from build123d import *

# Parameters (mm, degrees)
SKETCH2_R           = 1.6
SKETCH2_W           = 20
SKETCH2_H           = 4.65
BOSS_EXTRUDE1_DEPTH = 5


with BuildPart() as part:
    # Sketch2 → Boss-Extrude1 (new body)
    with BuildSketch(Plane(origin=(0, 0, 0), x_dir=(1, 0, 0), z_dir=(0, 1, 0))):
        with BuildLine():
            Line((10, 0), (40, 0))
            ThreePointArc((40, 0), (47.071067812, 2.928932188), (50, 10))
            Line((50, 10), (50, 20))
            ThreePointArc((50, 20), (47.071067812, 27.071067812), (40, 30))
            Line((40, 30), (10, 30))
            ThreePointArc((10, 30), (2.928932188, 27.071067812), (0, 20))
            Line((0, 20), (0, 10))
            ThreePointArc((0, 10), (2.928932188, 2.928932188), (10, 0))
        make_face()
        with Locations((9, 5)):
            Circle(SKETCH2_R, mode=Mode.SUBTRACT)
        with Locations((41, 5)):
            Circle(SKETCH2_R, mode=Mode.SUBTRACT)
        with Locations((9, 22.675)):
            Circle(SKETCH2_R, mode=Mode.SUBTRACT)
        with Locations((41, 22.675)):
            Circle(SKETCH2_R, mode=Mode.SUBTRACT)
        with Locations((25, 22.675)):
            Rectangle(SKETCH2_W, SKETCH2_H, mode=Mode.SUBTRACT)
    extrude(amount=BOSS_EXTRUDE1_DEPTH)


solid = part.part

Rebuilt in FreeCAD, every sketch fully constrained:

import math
import FreeCAD as App
import Part
import Sketcher
Q = App.Units.Quantity


def add_polygon(sketch, points):
    """Adds a closed chain of lines whose ends are joined by coincident constraints."""
    first, n = sketch.GeometryCount, len(points)
    for a, b in zip(points, points[1:] + points[:1]):
        sketch.addGeometry(Part.LineSegment(App.Vector(*a, 0), App.Vector(*b, 0)), False)
    for i in range(n):
        sketch.addConstraint(Sketcher.Constraint("Coincident", first + i, 2, first + (i + 1) % n, 1))

doc = App.newDocument("Part")
params = doc.addObject("Spreadsheet::Sheet", "Params")
for row, (alias, value) in enumerate([
    ("sketch1_radius", "10 mm"),
    ("sketch1_diameter", "3.2 mm"),
    ("sketch1_width", "30 mm"),
    ("sketch1_width2", "20 mm"),
    ("sketch1_height", "10 mm"),
    ("pad1_length", "5 mm"),
], start=1):
    params.set(f"A{row}", alias)
    params.set(f"B{row}", "=" + value)
    params.setAlias(f"B{row}", alias)

body = doc.addObject("PartDesign::Body", "Body")

# Sketch on XZ plane
sketch1 = body.newObject("Sketcher::SketchObject", "Sketch")
sketch1.AttachmentSupport = (doc.getObject("XZ_Plane"), [""])
sketch1.MapMode = "FlatFace"
sketch1.addGeometry(Part.LineSegment(App.Vector(10, 0, 0), App.Vector(40, 0, 0)), False)  # 0
sketch1.addGeometry(Part.ArcOfCircle(Part.Circle(App.Vector(40, -10, 0), App.Vector(0, 0, 1), 10), math.radians(0), math.radians(90)), False)  # 1
sketch1.addGeometry(Part.LineSegment(App.Vector(50, -10, 0), App.Vector(50, -20, 0)), False)  # 2
sketch1.addGeometry(Part.ArcOfCircle(Part.Circle(App.Vector(40, -20, 0), App.Vector(0, 0, 1), 10), math.radians(-90), math.radians(0)), False)  # 3
sketch1.addGeometry(Part.LineSegment(App.Vector(40, -30, 0), App.Vector(10, -30, 0)), False)  # 4
sketch1.addGeometry(Part.ArcOfCircle(Part.Circle(App.Vector(10, -20, 0), App.Vector(0, 0, 1), 10), math.radians(180), math.radians(270)), False)  # 5
sketch1.addGeometry(Part.LineSegment(App.Vector(0, -20, 0), App.Vector(0, -10, 0)), False)  # 6
sketch1.addGeometry(Part.ArcOfCircle(Part.Circle(App.Vector(10, -10, 0), App.Vector(0, 0, 1), 10), math.radians(90), math.radians(180)), False)  # 7
sketch1.addGeometry(Part.Circle(App.Vector(9, -5, 0), App.Vector(0, 0, 1), 1.6), False)  # 8
sketch1.addGeometry(Part.Circle(App.Vector(41, -5, 0), App.Vector(0, 0, 1), 1.6), False)  # 9
sketch1.addGeometry(Part.Circle(App.Vector(9, -22.675, 0), App.Vector(0, 0, 1), 1.6), False)  # 10
add_polygon(sketch1, [(35, -20.35), (15, -20.35), (15, -25), (35, -25)])  # lines 11-14
sketch1.addGeometry(Part.Circle(App.Vector(41, -22.675, 0), App.Vector(0, 0, 1), 1.6), False)  # 15
sketch1.addConstraint([
    Sketcher.Constraint("Tangent", 0, 2, 1, 2),
    Sketcher.Constraint("Tangent", 1, 1, 2, 1),
    Sketcher.Constraint("Tangent", 2, 2, 3, 2),
    Sketcher.Constraint("Tangent", 3, 1, 4, 1),
    Sketcher.Constraint("Tangent", 4, 2, 5, 2),
    Sketcher.Constraint("Tangent", 5, 1, 6, 1),
    Sketcher.Constraint("Tangent", 6, 2, 7, 2),
    Sketcher.Constraint("Tangent", 7, 1, 0, 1),
    Sketcher.Constraint("Horizontal", 0),
    Sketcher.Constraint("Vertical", 2),
    Sketcher.Constraint("Horizontal", 4),
    Sketcher.Constraint("Vertical", 6),
    Sketcher.Constraint("Horizontal", 11),
    Sketcher.Constraint("Vertical", 12),
    Sketcher.Constraint("Horizontal", 13),
    Sketcher.Constraint("Vertical", 14),
    Sketcher.Constraint("Equal", 1, 3),
    Sketcher.Constraint("Equal", 3, 5),
    Sketcher.Constraint("Equal", 5, 7),
    Sketcher.Constraint("Equal", 8, 9),
    Sketcher.Constraint("Equal", 9, 10),
    Sketcher.Constraint("Equal", 10, 15),
    Sketcher.Constraint("PointOnObject", 0, 2, -1),
    Sketcher.Constraint("PointOnObject", 5, 1, -2),
    Sketcher.Constraint("Horizontal", 8, 3, 9, 3),
    Sketcher.Constraint("Horizontal", 10, 3, 15, 3),
    Sketcher.Constraint("Vertical", 8, 3, 10, 3),
    Sketcher.Constraint("Vertical", 9, 3, 15, 3),
    Sketcher.Constraint("Radius", 1, Q("10 mm")),
    Sketcher.Constraint("Diameter", 8, Q("3.2 mm")),
    Sketcher.Constraint("DistanceX", 0, 1, 0, 2, Q("30 mm")),
    Sketcher.Constraint("DistanceX", 11, 2, 11, 1, Q("20 mm")),
    Sketcher.Constraint("DistanceY", 2, 2, 2, 1, Q("10 mm")),
    Sketcher.Constraint("DistanceX", -1, 1, 8, 3, Q("9 mm")),
    Sketcher.Constraint("DistanceY", 8, 3, -1, 1, Q("5 mm")),
    Sketcher.Constraint("DistanceX", -1, 1, 9, 3, Q("41 mm")),
    Sketcher.Constraint("DistanceX", -1, 1, 11, 2, Q("15 mm")),
    Sketcher.Constraint("DistanceY", 12, 2, -1, 1, Q("25 mm")),
    Sketcher.Constraint("DistanceY", 12, 2, 12, 1, Q("4.65 mm")),
    Sketcher.Constraint("DistanceY", 10, 3, -1, 1, Q("22.675 mm")),
])
sketch1.setExpression("Constraints[32]", "Params.sketch1_radius")
sketch1.setExpression("Constraints[33]", "Params.sketch1_diameter")
sketch1.setExpression("Constraints[34]", "Params.sketch1_width")
sketch1.setExpression("Constraints[35]", "Params.sketch1_width2")
sketch1.setExpression("Constraints[36]", "Params.sketch1_height")
pad1 = body.newObject("PartDesign::Pad", "Pad")
pad1.Profile = sketch1
pad1.setExpression("Length", "Params.pad1_length")
pad1.Reversed = True

doc.recompute()
